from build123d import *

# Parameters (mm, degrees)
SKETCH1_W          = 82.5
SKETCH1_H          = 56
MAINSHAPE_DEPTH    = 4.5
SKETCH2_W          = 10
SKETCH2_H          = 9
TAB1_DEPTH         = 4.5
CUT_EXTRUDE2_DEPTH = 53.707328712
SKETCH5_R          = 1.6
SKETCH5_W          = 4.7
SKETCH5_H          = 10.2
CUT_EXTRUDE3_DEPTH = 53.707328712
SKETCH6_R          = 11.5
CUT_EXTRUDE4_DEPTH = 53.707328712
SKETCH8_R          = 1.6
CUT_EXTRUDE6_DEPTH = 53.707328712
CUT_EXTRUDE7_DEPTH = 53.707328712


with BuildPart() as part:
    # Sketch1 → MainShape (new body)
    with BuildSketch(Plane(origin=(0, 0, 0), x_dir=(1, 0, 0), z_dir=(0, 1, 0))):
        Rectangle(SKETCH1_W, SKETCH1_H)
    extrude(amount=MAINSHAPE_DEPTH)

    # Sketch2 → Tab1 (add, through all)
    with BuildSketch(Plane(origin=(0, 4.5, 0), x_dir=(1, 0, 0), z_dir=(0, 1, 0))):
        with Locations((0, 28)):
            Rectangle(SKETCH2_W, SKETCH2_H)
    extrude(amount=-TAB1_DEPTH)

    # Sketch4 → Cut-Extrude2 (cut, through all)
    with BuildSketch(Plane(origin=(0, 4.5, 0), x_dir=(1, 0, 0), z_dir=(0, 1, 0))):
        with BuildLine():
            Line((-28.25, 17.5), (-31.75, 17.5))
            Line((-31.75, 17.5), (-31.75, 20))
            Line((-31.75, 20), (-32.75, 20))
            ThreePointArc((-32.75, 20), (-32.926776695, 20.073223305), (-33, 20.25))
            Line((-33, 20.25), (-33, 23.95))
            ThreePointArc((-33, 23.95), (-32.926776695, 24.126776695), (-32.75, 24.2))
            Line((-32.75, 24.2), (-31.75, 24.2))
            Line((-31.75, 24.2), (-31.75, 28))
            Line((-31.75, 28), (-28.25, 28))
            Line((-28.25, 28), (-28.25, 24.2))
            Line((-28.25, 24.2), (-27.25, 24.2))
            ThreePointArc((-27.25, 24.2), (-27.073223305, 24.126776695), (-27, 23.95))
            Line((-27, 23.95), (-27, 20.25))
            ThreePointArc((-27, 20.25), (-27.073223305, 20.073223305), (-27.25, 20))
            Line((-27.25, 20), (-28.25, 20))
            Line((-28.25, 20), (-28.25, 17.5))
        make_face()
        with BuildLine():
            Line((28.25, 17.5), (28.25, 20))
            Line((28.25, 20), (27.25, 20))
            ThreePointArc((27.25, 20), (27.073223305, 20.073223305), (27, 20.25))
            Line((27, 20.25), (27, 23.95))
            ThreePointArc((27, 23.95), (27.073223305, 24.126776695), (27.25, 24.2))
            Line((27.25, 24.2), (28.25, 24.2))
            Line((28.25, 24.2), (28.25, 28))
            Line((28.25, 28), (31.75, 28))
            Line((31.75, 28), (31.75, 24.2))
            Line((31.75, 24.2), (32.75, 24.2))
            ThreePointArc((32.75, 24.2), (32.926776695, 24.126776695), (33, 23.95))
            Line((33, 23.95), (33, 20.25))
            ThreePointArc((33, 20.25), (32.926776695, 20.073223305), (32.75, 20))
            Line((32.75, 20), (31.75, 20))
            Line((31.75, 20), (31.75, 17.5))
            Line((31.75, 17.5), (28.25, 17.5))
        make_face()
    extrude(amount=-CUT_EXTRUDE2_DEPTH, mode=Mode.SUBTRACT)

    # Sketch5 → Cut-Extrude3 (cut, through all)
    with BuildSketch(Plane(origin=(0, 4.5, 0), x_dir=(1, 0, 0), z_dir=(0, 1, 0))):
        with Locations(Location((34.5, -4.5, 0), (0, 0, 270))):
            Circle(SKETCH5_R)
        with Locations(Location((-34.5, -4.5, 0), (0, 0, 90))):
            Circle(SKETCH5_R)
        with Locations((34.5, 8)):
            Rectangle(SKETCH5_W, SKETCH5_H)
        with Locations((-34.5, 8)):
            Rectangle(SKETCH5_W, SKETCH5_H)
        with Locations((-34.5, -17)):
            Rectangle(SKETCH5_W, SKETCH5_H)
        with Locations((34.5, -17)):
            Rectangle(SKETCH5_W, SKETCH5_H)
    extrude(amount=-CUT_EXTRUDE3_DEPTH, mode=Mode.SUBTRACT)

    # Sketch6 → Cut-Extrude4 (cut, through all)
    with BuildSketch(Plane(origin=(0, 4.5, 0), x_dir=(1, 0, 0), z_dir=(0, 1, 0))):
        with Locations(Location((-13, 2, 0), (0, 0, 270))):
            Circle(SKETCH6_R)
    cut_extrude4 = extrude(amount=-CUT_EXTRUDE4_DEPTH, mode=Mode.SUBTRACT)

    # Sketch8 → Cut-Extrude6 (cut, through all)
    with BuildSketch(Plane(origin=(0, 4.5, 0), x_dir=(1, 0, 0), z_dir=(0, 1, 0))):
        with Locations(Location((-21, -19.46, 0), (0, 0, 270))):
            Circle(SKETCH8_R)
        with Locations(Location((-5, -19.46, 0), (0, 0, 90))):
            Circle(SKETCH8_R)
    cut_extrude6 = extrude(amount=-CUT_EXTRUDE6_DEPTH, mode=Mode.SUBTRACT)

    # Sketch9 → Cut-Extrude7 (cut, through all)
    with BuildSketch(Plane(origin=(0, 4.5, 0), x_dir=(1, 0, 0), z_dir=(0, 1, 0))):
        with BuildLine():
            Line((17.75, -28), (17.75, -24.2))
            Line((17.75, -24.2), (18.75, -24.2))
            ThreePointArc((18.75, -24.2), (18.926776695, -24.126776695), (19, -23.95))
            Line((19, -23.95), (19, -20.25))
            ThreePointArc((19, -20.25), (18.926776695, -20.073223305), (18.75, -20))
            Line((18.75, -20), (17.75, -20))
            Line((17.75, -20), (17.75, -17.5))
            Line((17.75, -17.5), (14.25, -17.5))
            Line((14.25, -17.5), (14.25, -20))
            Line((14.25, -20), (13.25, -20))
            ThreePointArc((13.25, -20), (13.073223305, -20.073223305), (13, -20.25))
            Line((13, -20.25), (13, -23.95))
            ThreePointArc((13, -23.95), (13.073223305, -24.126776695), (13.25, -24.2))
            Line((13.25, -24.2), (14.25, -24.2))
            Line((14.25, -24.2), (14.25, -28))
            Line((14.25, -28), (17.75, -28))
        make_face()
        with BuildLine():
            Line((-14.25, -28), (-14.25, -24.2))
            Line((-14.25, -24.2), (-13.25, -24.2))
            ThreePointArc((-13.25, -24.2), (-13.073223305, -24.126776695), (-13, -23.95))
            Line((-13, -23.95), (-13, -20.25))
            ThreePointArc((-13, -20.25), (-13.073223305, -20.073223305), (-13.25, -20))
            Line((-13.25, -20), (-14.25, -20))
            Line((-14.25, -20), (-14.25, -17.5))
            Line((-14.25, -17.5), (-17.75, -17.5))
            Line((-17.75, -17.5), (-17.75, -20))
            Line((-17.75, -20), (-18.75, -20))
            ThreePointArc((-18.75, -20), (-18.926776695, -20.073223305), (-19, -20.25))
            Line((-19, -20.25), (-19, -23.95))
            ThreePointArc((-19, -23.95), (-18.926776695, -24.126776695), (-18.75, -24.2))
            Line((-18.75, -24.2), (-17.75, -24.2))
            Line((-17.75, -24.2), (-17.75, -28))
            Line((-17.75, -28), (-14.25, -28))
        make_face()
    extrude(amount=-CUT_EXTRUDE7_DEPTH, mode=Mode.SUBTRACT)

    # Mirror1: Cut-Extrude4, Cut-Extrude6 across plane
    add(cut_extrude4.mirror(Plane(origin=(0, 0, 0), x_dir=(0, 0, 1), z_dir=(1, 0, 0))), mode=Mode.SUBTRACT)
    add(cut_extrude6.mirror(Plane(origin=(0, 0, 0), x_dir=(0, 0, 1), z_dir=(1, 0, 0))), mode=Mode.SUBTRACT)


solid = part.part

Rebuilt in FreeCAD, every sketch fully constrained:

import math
import FreeCAD as App
import Part
import Sketcher
from FreeCAD import Vector
Q = App.Units.Quantity

doc = App.newDocument("Part")
body = doc.addObject("PartDesign::Body", "Body")

# Sketch on XZ plane
sketch1 = doc.addObject("Sketcher::SketchObject", "Sketch")
body.addObject(sketch1)
sketch1.AttachmentSupport = (doc.XZ_Plane, [""])
sketch1.MapMode = "FlatFace"
sketch1.addGeometry([
    Part.LineSegment(Vector(-41.25, -28, 0), Vector(-41.25, 28, 0)),
    Part.LineSegment(Vector(-41.25, 28, 0), Vector(41.25, 28, 0)),
    Part.LineSegment(Vector(41.25, 28, 0), Vector(41.25, -28, 0)),
    Part.LineSegment(Vector(41.25, -28, 0), Vector(-41.25, -28, 0)),
], False)
sketch1.addConstraint([
    Sketcher.Constraint("Coincident", 0, 2, 1, 1),
    Sketcher.Constraint("Coincident", 1, 2, 2, 1),
    Sketcher.Constraint("Coincident", 2, 2, 3, 1),
    Sketcher.Constraint("Coincident", 3, 2, 0, 1),
    Sketcher.Constraint("Vertical", 0),
    Sketcher.Constraint("Horizontal", 1),
    Sketcher.Constraint("Vertical", 2),
    Sketcher.Constraint("Horizontal", 3),
    Sketcher.Constraint("Symmetric", 0, 2, 2, 2, -1, 1),
    Sketcher.Constraint("DistanceY", 0, 1, 0, 2, Q("56 mm")),
    Sketcher.Constraint("DistanceX", 1, 1, 1, 2, Q("82.5 mm")),
])
pad1 = doc.addObject("PartDesign::Pad", "Pad")
body.addObject(pad1)
pad1.Profile = sketch1
pad1.Length = 4.5
pad1.Reversed = True

# Sketch on XZ plane
sketch2 = doc.addObject("Sketcher::SketchObject", "Sketch001")
body.addObject(sketch2)
sketch2.AttachmentSupport = (doc.XZ_Plane, [""])
sketch2.MapMode = "FlatFace"
sketch2.AttachmentOffset = App.Placement(Vector(0, 0, -4.5), App.Rotation())
sketch2.addGeometry([
    Part.LineSegment(Vector(-5, -32.5, 0), Vector(-5, -23.5, 0)),
    Part.LineSegment(Vector(-5, -23.5, 0), Vector(5, -23.5, 0)),
    Part.LineSegment(Vector(5, -23.5, 0), Vector(5, -32.5, 0)),
    Part.LineSegment(Vector(5, -32.5, 0), Vector(-5, -32.5, 0)),
], False)
sketch2.addConstraint([
    Sketcher.Constraint("Coincident", 0, 2, 1, 1),
    Sketcher.Constraint("Coincident", 1, 2, 2, 1),
    Sketcher.Constraint("Coincident", 2, 2, 3, 1),
    Sketcher.Constraint("Coincident", 3, 2, 0, 1),
    Sketcher.Constraint("Vertical", 0),
    Sketcher.Constraint("Horizontal", 1),
    Sketcher.Constraint("Vertical", 2),
    Sketcher.Constraint("Horizontal", 3),
    Sketcher.Constraint("DistanceX", 1, 1, 1, 2, Q("10 mm")),
    Sketcher.Constraint("DistanceY", 0, 1, 0, 2, Q("9 mm")),
    Sketcher.Constraint("DistanceX", 0, 2, -1, 1, Q("5 mm")),
    Sketcher.Constraint("DistanceY", 0, 2, -1, 1, Q("23.5 mm")),
])
pad2 = doc.addObject("PartDesign::Pad", "Pad001")
body.addObject(pad2)
pad2.Profile = sketch2
pad2.Type = "UpToLast"

# Sketch on XZ plane
sketch3 = doc.addObject("Sketcher::SketchObject", "Sketch002")
body.addObject(sketch3)
sketch3.AttachmentSupport = (doc.XZ_Plane, [""])
sketch3.MapMode = "FlatFace"
sketch3.AttachmentOffset = App.Placement(Vector(0, 0, -4.5), App.Rotation())
sketch3.addGeometry([
    Part.LineSegment(Vector(-31.75, -17.5, 0), Vector(-28.25, -17.5, 0)),  # 0
    Part.LineSegment(Vector(-28.25, -17.5, 0), Vector(-28.25, -20, 0)),  # 1
    Part.LineSegment(Vector(-28.25, -20, 0), Vector(-27.25, -20, 0)),  # 2
    Part.ArcOfCircle(Part.Circle(Vector(-27.25, -20.25, 0), Vector(0, 0, 1), 0.25), math.radians(0), math.radians(90)),  # 3
    Part.LineSegment(Vector(-27, -20.25, 0), Vector(-27, -23.95, 0)),  # 4
    Part.ArcOfCircle(Part.Circle(Vector(-27.25, -23.95, 0), Vector(0, 0, 1), 0.25), math.radians(-90), math.radians(0)),  # 5
    Part.LineSegment(Vector(-27.25, -24.2, 0), Vector(-28.25, -24.2, 0)),  # 6
    Part.LineSegment(Vector(-28.25, -24.2, 0), Vector(-28.25, -28, 0)),  # 7
    Part.LineSegment(Vector(-28.25, -28, 0), Vector(-31.75, -28, 0)),  # 8
    Part.LineSegment(Vector(-31.75, -28, 0), Vector(-31.75, -24.2, 0)),  # 9
    Part.LineSegment(Vector(-31.75, -24.2, 0), Vector(-32.75, -24.2, 0)),  # 10
    Part.ArcOfCircle(Part.Circle(Vector(-32.75, -23.95, 0), Vector(0, 0, 1), 0.25), math.radians(-180), math.radians(-90)),  # 11
    Part.LineSegment(Vector(-33, -23.95, 0), Vector(-33, -20.25, 0)),  # 12
    Part.ArcOfCircle(Part.Circle(Vector(-32.75, -20.25, 0), Vector(0, 0, 1), 0.25), math.radians(90), math.radians(180)),  # 13
    Part.LineSegment(Vector(-32.75, -20, 0), Vector(-31.75, -20, 0)),  # 14
    Part.LineSegment(Vector(-31.75, -20, 0), Vector(-31.75, -17.5, 0)),  # 15
    Part.LineSegment(Vector(28.25, -20, 0), Vector(28.25, -17.5, 0)),  # 16
    Part.LineSegment(Vector(28.25, -17.5, 0), Vector(31.75, -17.5, 0)),  # 17
    Part.LineSegment(Vector(31.75, -17.5, 0), Vector(31.75, -20, 0)),  # 18
    Part.LineSegment(Vector(31.75, -20, 0), Vector(32.75, -20, 0)),  # 19
    Part.ArcOfCircle(Part.Circle(Vector(32.75, -20.25, 0), Vector(0, 0, 1), 0.25), math.radians(0), math.radians(90)),  # 20
    Part.LineSegment(Vector(33, -20.25, 0), Vector(33, -23.95, 0)),  # 21
    Part.ArcOfCircle(Part.Circle(Vector(32.75, -23.95, 0), Vector(0, 0, 1), 0.25), math.radians(-90), math.radians(0)),  # 22
    Part.LineSegment(Vector(32.75, -24.2, 0), Vector(31.75, -24.2, 0)),  # 23
    Part.LineSegment(Vector(31.75, -24.2, 0), Vector(31.75, -28, 0)),  # 24
    Part.LineSegment(Vector(31.75, -28, 0), Vector(28.25, -28, 0)),  # 25
    Part.LineSegment(Vector(28.25, -28, 0), Vector(28.25, -24.2, 0)),  # 26
    Part.LineSegment(Vector(28.25, -24.2, 0), Vector(27.25, -24.2, 0)),  # 27
    Part.ArcOfCircle(Part.Circle(Vector(27.25, -23.95, 0), Vector(0, 0, 1), 0.25), math.radians(-180), math.radians(-90)),  # 28
    Part.LineSegment(Vector(27, -23.95, 0), Vector(27, -20.25, 0)),  # 29
    Part.ArcOfCircle(Part.Circle(Vector(27.25, -20.25, 0), Vector(0, 0, 1), 0.25), math.radians(90), math.radians(180)),  # 30
    Part.LineSegment(Vector(27.25, -20, 0), Vector(28.25, -20, 0)),  # 31
], False)
sketch3.addConstraint([
    Sketcher.Constraint("Coincident", 0, 2, 1, 1),
    Sketcher.Constraint("Coincident", 1, 2, 2, 1),
    Sketcher.Constraint("Tangent", 2, 2, 3, 2),
    Sketcher.Constraint("Tangent", 3, 1, 4, 1),
    Sketcher.Constraint("Tangent", 4, 2, 5, 2),
    Sketcher.Constraint("Tangent", 5, 1, 6, 1),
    Sketcher.Constraint("Coincident", 6, 2, 7, 1),
    Sketcher.Constraint("Coincident", 7, 2, 8, 1),
    Sketcher.Constraint("Coincident", 8, 2, 9, 1),
    Sketcher.Constraint("Coincident", 9, 2, 10, 1),
    Sketcher.Constraint("Tangent", 10, 2, 11, 2),
    Sketcher.Constraint("Tangent", 11, 1, 12, 1),
    Sketcher.Constraint("Tangent", 12, 2, 13, 2),
    Sketcher.Constraint("Tangent", 13, 1, 14, 1),
    Sketcher.Constraint("Coincident", 14, 2, 15, 1),
    Sketcher.Constraint("Coincident", 15, 2, 0, 1),
    Sketcher.Constraint("Coincident", 16, 2, 17, 1),
    Sketcher.Constraint("Coincident", 17, 2, 18, 1),
    Sketcher.Constraint("Coincident", 18, 2, 19, 1),
    Sketcher.Constraint("Tangent", 19, 2, 20, 2),
    Sketcher.Constraint("Tangent", 20, 1, 21, 1),
    Sketcher.Constraint("Tangent", 21, 2, 22, 2),
    Sketcher.Constraint("Tangent", 22, 1, 23, 1),
    Sketcher.Constraint("Coincident", 23, 2, 24, 1),
    Sketcher.Constraint("Coincident", 24, 2, 25, 1),
    Sketcher.Constraint("Coincident", 25, 2, 26, 1),
    Sketcher.Constraint("Coincident", 26, 2, 27, 1),
    Sketcher.Constraint("Tangent", 27, 2, 28, 2),
    Sketcher.Constraint("Tangent", 28, 1, 29, 1),
    Sketcher.Constraint("Tangent", 29, 2, 30, 2),
    Sketcher.Constraint("Tangent", 30, 1, 31, 1),
    Sketcher.Constraint("Coincident", 31, 2, 16, 1),
    Sketcher.Constraint("Horizontal", 0),
    Sketcher.Constraint("Vertical", 1),
    Sketcher.Constraint("Horizontal", 2),
    Sketcher.Constraint("Vertical", 4),
    Sketcher.Constraint("Horizontal", 6),
    Sketcher.Constraint("Vertical", 7),
    Sketcher.Constraint("Horizontal", 8),
    Sketcher.Constraint("Vertical", 9),
    Sketcher.Constraint("Horizontal", 10),
    Sketcher.Constraint("Vertical", 12),
    Sketcher.Constraint("Horizontal", 14),
    Sketcher.Constraint("Vertical", 15),
    Sketcher.Constraint("Vertical", 16),
    Sketcher.Constraint("Horizontal", 17),
    Sketcher.Constraint("Vertical", 18),
    Sketcher.Constraint("Horizontal", 19),
    Sketcher.Constraint("Vertical", 21),
    Sketcher.Constraint("Horizontal", 23),
    Sketcher.Constraint("Vertical", 24),
    Sketcher.Constraint("Horizontal", 25),
    Sketcher.Constraint("Vertical", 26),
    Sketcher.Constraint("Horizontal", 27),
    Sketcher.Constraint("Vertical", 29),
    Sketcher.Constraint("Horizontal", 31),
    Sketcher.Constraint("Equal", 3, 5),
    Sketcher.Constraint("Equal", 5, 11),
    Sketcher.Constraint("Equal", 11, 13),
    Sketcher.Constraint("Equal", 13, 20),
    Sketcher.Constraint("Equal", 20, 22),
    Sketcher.Constraint("Equal", 22, 28),
    Sketcher.Constraint("Equal", 28, 30),
    Sketcher.Constraint("Symmetric", 13, 3, 20, 3, -2),
    Sketcher.Constraint("Symmetric", 5, 3, 28, 3, -2),
    Sketcher.Constraint("Symmetric", 0, 2, 16, 2, -2),
    Sketcher.Constraint("Symmetric", 9, 2, 23, 2, -2),
    Sketcher.Constraint("Symmetric", 7, 2, 25, 2, -2),
    Sketcher.Constraint("Horizontal", 5, 3, 11, 3),
    Sketcher.Constraint("Horizontal", 3, 3, 13, 3),
    Sketcher.Constraint("Horizontal", 20, 3, 30, 3),
    Sketcher.Constraint("Vertical", 1, 2, 6, 2),
    Sketcher.Constraint("Vertical", 9, 2, 14, 2),
    Sketcher.Constraint("Vertical", 18, 2, 23, 2),
    Sketcher.Constraint("Equal", 6, 10),
    Sketcher.Constraint("DistanceX", 2, 1, 2, 2, Q("1 mm")),
    Sketcher.Constraint("Radius", 3, Q("0.25 mm")),
    Sketcher.Constraint("DistanceX", 0, 1, 0, 2, Q("3.5 mm")),
    Sketcher.Constraint("DistanceY", 1, 2, 1, 1, Q("2.5 mm")),
    Sketcher.Constraint("DistanceY", 4, 2, 4, 1, Q("3.7 mm")),
    Sketcher.Constraint("DistanceY", 7, 2, 7, 1, Q("3.8 mm")),
    Sketcher.Constraint("DistanceY", 1, 2, -1, 1, Q("20 mm")),
    Sketcher.Constraint("DistanceX", 3, 1, -1, 1, Q("27 mm")),
])
pocket1 = doc.addObject("PartDesign::Pocket", "Pocket")
body.addObject(pocket1)
pocket1.Profile = sketch3
pocket1.Type = "ThroughAll"
pocket1.Reversed = True

# Sketch on XZ plane
sketch4 = doc.addObject("Sketcher::SketchObject", "Sketch003")
body.addObject(sketch4)
sketch4.AttachmentSupport = (doc.XZ_Plane, [""])
sketch4.MapMode = "FlatFace"
sketch4.AttachmentOffset = App.Placement(Vector(0, 0, -4.5), App.Rotation())
sketch4.addGeometry([
    Part.Circle(Vector(34.5, 4.5, 0), Vector(0, 0, 1), 1.6),  # 0
    Part.Circle(Vector(-34.5, 4.5, 0), Vector(0, 0, 1), 1.6),  # 1
    Part.LineSegment(Vector(32.15, -13.1, 0), Vector(32.15, -2.9, 0)),  # 2
    Part.LineSegment(Vector(32.15, -2.9, 0), Vector(36.85, -2.9, 0)),  # 3
    Part.LineSegment(Vector(36.85, -2.9, 0), Vector(36.85, -13.1, 0)),  # 4
    Part.LineSegment(Vector(36.85, -13.1, 0), Vector(32.15, -13.1, 0)),  # 5
    Part.LineSegment(Vector(-36.85, -13.1, 0), Vector(-36.85, -2.9, 0)),  # 6
    Part.LineSegment(Vector(-36.85, -2.9, 0), Vector(-32.15, -2.9, 0)),  # 7
    Part.LineSegment(Vector(-32.15, -2.9, 0), Vector(-32.15, -13.1, 0)),  # 8
    Part.LineSegment(Vector(-32.15, -13.1, 0), Vector(-36.85, -13.1, 0)),  # 9
    Part.LineSegment(Vector(-36.85, 11.9, 0), Vector(-36.85, 22.1, 0)),  # 10
    Part.LineSegment(Vector(-36.85, 22.1, 0), Vector(-32.15, 22.1, 0)),  # 11
    Part.LineSegment(Vector(-32.15, 22.1, 0), Vector(-32.15, 11.9, 0)),  # 12
    Part.LineSegment(Vector(-32.15, 11.9, 0), Vector(-36.85, 11.9, 0)),  # 13
    Part.LineSegment(Vector(32.15, 11.9, 0), Vector(32.15, 22.1, 0)),  # 14
    Part.LineSegment(Vector(32.15, 22.1, 0), Vector(36.85, 22.1, 0)),  # 15
    Part.LineSegment(Vector(36.85, 22.1, 0), Vector(36.85, 11.9, 0)),  # 16
    Part.LineSegment(Vector(36.85, 11.9, 0), Vector(32.15, 11.9, 0)),  # 17
], False)
sketch4.addConstraint([
    Sketcher.Constraint("Coincident", 2, 2, 3, 1),
    Sketcher.Constraint("Coincident", 3, 2, 4, 1),
    Sketcher.Constraint("Coincident", 4, 2, 5, 1),
    Sketcher.Constraint("Coincident", 5, 2, 2, 1),
    Sketcher.Constraint("Coincident", 6, 2, 7, 1),
    Sketcher.Constraint("Coincident", 7, 2, 8, 1),
    Sketcher.Constraint("Coincident", 8, 2, 9, 1),
    Sketcher.Constraint("Coincident", 9, 2, 6, 1),
    Sketcher.Constraint("Coincident", 10, 2, 11, 1),
    Sketcher.Constraint("Coincident", 11, 2, 12, 1),
    Sketcher.Constraint("Coincident", 12, 2, 13, 1),
    Sketcher.Constraint("Coincident", 13, 2, 10, 1),
    Sketcher.Constraint("Coincident", 14, 2, 15, 1),
    Sketcher.Constraint("Coincident", 15, 2, 16, 1),
    Sketcher.Constraint("Coincident", 16, 2, 17, 1),
    Sketcher.Constraint("Coincident", 17, 2, 14, 1),
    Sketcher.Constraint("Vertical", 2),
    Sketcher.Constraint("Horizontal", 3),
    Sketcher.Constraint("Vertical", 4),
    Sketcher.Constraint("Horizontal", 5),
    Sketcher.Constraint("Vertical", 6),
    Sketcher.Constraint("Horizontal", 7),
    Sketcher.Constraint("Vertical", 8),
    Sketcher.Constraint("Horizontal", 9),
    Sketcher.Constraint("Vertical", 10),
    Sketcher.Constraint("Horizontal", 11),
    Sketcher.Constraint("Vertical", 12),
    Sketcher.Constraint("Horizontal", 13),
    Sketcher.Constraint("Vertical", 14),
    Sketcher.Constraint("Horizontal", 15),
    Sketcher.Constraint("Vertical", 16),
    Sketcher.Constraint("Horizontal", 17),
    Sketcher.Constraint("Equal", 0, 1),
    Sketcher.Constraint("Symmetric", 0, 3, 1, 3, -2),
    Sketcher.Constraint("Symmetric", 3, 2, 6, 2, -2),
    Sketcher.Constraint("Symmetric", 5, 2, 8, 2, -2),
    Sketcher.Constraint("Symmetric", 11, 2, 14, 2, -2),
    Sketcher.Constraint("Symmetric", 13, 2, 16, 2, -2),
    Sketcher.Constraint("Vertical", 9, 2, 10, 2),
    Sketcher.Constraint("Vertical", 8, 2, 11, 2),
    Sketcher.Constraint("Equal", 8, 10),
    Sketcher.Constraint("Diameter", 0, Q("3.2 mm")),
    Sketcher.Constraint("DistanceX", 3, 1, 3, 2, Q("4.7 mm")),
    Sketcher.Constraint("DistanceY", 2, 1, 2, 2, Q("10.2 mm")),
    Sketcher.Constraint("DistanceX", 1, 3, 0, 3, Q("69 mm")),
    Sketcher.Constraint("DistanceX", 6, 2, 2, 2, Q("69 mm")),
    Sketcher.Constraint("DistanceY", 6, 2, 10, 2, Q("25 mm")),
    Sketcher.Constraint("DistanceY", -1, 1, 0, 3, Q("4.5 mm")),
    Sketcher.Constraint("DistanceY", 2, 2, -1, 1, Q("2.9 mm")),
])
pocket2 = doc.addObject("PartDesign::Pocket", "Pocket001")
body.addObject(pocket2)
pocket2.Profile = sketch4
pocket2.Type = "ThroughAll"
pocket2.Reversed = True

# Sketch on XZ plane
sketch5 = doc.addObject("Sketcher::SketchObject", "Sketch004")
body.addObject(sketch5)
sketch5.AttachmentSupport = (doc.XZ_Plane, [""])
sketch5.MapMode = "FlatFace"
sketch5.AttachmentOffset = App.Placement(Vector(0, 0, -4.5), App.Rotation())
sketch5.addGeometry(Part.Circle(Vector(-13, -2, 0), Vector(0, 0, 1), 11.5), False)
sketch5.addConstraint([
    Sketcher.Constraint("Diameter", 0, Q("23 mm")),
    Sketcher.Constraint("DistanceX", 0, 3, -1, 1, Q("13 mm")),
    Sketcher.Constraint("DistanceY", 0, 3, -1, 1, Q("2 mm")),
])
pocket3 = doc.addObject("PartDesign::Pocket", "Pocket002")
body.addObject(pocket3)
pocket3.Profile = sketch5
pocket3.Type = "ThroughAll"
pocket3.Reversed = True

# Sketch on XZ plane
sketch6 = doc.addObject("Sketcher::SketchObject", "Sketch005")
body.addObject(sketch6)
sketch6.AttachmentSupport = (doc.XZ_Plane, [""])
sketch6.MapMode = "FlatFace"
sketch6.AttachmentOffset = App.Placement(Vector(0, 0, -4.5), App.Rotation())
sketch6.addGeometry([
    Part.Circle(Vector(-21, 19.46, 0), Vector(0, 0, 1), 1.6),
    Part.Circle(Vector(-5, 19.46, 0), Vector(0, 0, 1), 1.6),
], False)
sketch6.addConstraint([
    Sketcher.Constraint("Equal", 0, 1),
    Sketcher.Constraint("Horizontal", 0, 3, 1, 3),
    Sketcher.Constraint("Diameter", 0, Q("3.2 mm")),
    Sketcher.Constraint("DistanceX", 0, 3, -1, 1, Q("21 mm")),
    Sketcher.Constraint("DistanceX", 1, 3, -1, 1, Q("5 mm")),
    Sketcher.Constraint("DistanceY", -1, 1, 0, 3, Q("19.46 mm")),
])
pocket4 = doc.addObject("PartDesign::Pocket", "Pocket003")
body.addObject(pocket4)
pocket4.Profile = sketch6
pocket4.Type = "ThroughAll"
pocket4.Reversed = True

# Sketch on XZ plane
sketch7 = doc.addObject("Sketcher::SketchObject", "Sketch006")
body.addObject(sketch7)
sketch7.AttachmentSupport = (doc.XZ_Plane, [""])
sketch7.MapMode = "FlatFace"
sketch7.AttachmentOffset = App.Placement(Vector(0, 0, -4.5), App.Rotation())
sketch7.addGeometry([
    Part.LineSegment(Vector(17.75, 28, 0), Vector(17.75, 24.2, 0)),  # 0
    Part.LineSegment(Vector(17.75, 24.2, 0), Vector(18.75, 24.2, 0)),  # 1
    Part.ArcOfCircle(Part.Circle(Vector(18.75, 23.95, 0), Vector(0, 0, 1), 0.25), math.radians(0), math.radians(90)),  # 2
    Part.LineSegment(Vector(19, 23.95, 0), Vector(19, 20.25, 0)),  # 3
    Part.ArcOfCircle(Part.Circle(Vector(18.75, 20.25, 0), Vector(0, 0, 1), 0.25), math.radians(-90), math.radians(0)),  # 4
    Part.LineSegment(Vector(18.75, 20, 0), Vector(17.75, 20, 0)),  # 5
    Part.LineSegment(Vector(17.75, 20, 0), Vector(17.75, 17.5, 0)),  # 6
    Part.LineSegment(Vector(17.75, 17.5, 0), Vector(14.25, 17.5, 0)),  # 7
    Part.LineSegment(Vector(14.25, 17.5, 0), Vector(14.25, 20, 0)),  # 8
    Part.LineSegment(Vector(14.25, 20, 0), Vector(13.25, 20, 0)),  # 9
    Part.ArcOfCircle(Part.Circle(Vector(13.25, 20.25, 0), Vector(0, 0, 1), 0.25), math.radians(-180), math.radians(-90)),  # 10
    Part.LineSegment(Vector(13, 20.25, 0), Vector(13, 23.95, 0)),  # 11
    Part.ArcOfCircle(Part.Circle(Vector(13.25, 23.95, 0), Vector(0, 0, 1), 0.25), math.radians(90), math.radians(180)),  # 12
    Part.LineSegment(Vector(13.25, 24.2, 0), Vector(14.25, 24.2, 0)),  # 13
    Part.LineSegment(Vector(14.25, 24.2, 0), Vector(14.25, 28, 0)),  # 14
    Part.LineSegment(Vector(14.25, 28, 0), Vector(17.75, 28, 0)),  # 15
    Part.LineSegment(Vector(-14.25, 28, 0), Vector(-14.25, 24.2, 0)),  # 16
    Part.LineSegment(Vector(-14.25, 24.2, 0), Vector(-13.25, 24.2, 0)),  # 17
    Part.ArcOfCircle(Part.Circle(Vector(-13.25, 23.95, 0), Vector(0, 0, 1), 0.25), math.radians(0), math.radians(90)),  # 18
    Part.LineSegment(Vector(-13, 23.95, 0), Vector(-13, 20.25, 0)),  # 19
    Part.ArcOfCircle(Part.Circle(Vector(-13.25, 20.25, 0), Vector(0, 0, 1), 0.25), math.radians(-90), math.radians(0)),  # 20
    Part.LineSegment(Vector(-13.25, 20, 0), Vector(-14.25, 20, 0)),  # 21
    Part.LineSegment(Vector(-14.25, 20, 0), Vector(-14.25, 17.5, 0)),  # 22
    Part.LineSegment(Vector(-14.25, 17.5, 0), Vector(-17.75, 17.5, 0)),  # 23
    Part.LineSegment(Vector(-17.75, 17.5, 0), Vector(-17.75, 20, 0)),  # 24
    Part.LineSegment(Vector(-17.75, 20, 0), Vector(-18.75, 20, 0)),  # 25
    Part.ArcOfCircle(Part.Circle(Vector(-18.75, 20.25, 0), Vector(0, 0, 1), 0.25), math.radians(-180), math.radians(-90)),  # 26
    Part.LineSegment(Vector(-19, 20.25, 0), Vector(-19, 23.95, 0)),  # 27
    Part.ArcOfCircle(Part.Circle(Vector(-18.75, 23.95, 0), Vector(0, 0, 1), 0.25), math.radians(90), math.radians(180)),  # 28
    Part.LineSegment(Vector(-18.75, 24.2, 0), Vector(-17.75, 24.2, 0)),  # 29
    Part.LineSegment(Vector(-17.75, 24.2, 0), Vector(-17.75, 28, 0)),  # 30
    Part.LineSegment(Vector(-17.75, 28, 0), Vector(-14.25, 28, 0)),  # 31
], False)
sketch7.addConstraint([
    Sketcher.Constraint("Coincident", 0, 2, 1, 1),
    Sketcher.Constraint("Tangent", 1, 2, 2, 2),
    Sketcher.Constraint("Tangent", 2, 1, 3, 1),
    Sketcher.Constraint("Tangent", 3, 2, 4, 2),
    Sketcher.Constraint("Tangent", 4, 1, 5, 1),
    Sketcher.Constraint("Coincident", 5, 2, 6, 1),
    Sketcher.Constraint("Coincident", 6, 2, 7, 1),
    Sketcher.Constraint("Coincident", 7, 2, 8, 1),
    Sketcher.Constraint("Coincident", 8, 2, 9, 1),
    Sketcher.Constraint("Tangent", 9, 2, 10, 2),
    Sketcher.Constraint("Tangent", 10, 1, 11, 1),
    Sketcher.Constraint("Tangent", 11, 2, 12, 2),
    Sketcher.Constraint("Tangent", 12, 1, 13, 1),
    Sketcher.Constraint("Coincident", 13, 2, 14, 1),
    Sketcher.Constraint("Coincident", 14, 2, 15, 1),
    Sketcher.Constraint("Coincident", 15, 2, 0, 1),
    Sketcher.Constraint("Coincident", 16, 2, 17, 1),
    Sketcher.Constraint("Tangent", 17, 2, 18, 2),
    Sketcher.Constraint("Tangent", 18, 1, 19, 1),
    Sketcher.Constraint("Tangent", 19, 2, 20, 2),
    Sketcher.Constraint("Tangent", 20, 1, 21, 1),
    Sketcher.Constraint("Coincident", 21, 2, 22, 1),
    Sketcher.Constraint("Coincident", 22, 2, 23, 1),
    Sketcher.Constraint("Coincident", 23, 2, 24, 1),
    Sketcher.Constraint("Coincident", 24, 2, 25, 1),
    Sketcher.Constraint("Tangent", 25, 2, 26, 2),
    Sketcher.Constraint("Tangent", 26, 1, 27, 1),
    Sketcher.Constraint("Tangent", 27, 2, 28, 2),
    Sketcher.Constraint("Tangent", 28, 1, 29, 1),
    Sketcher.Constraint("Coincident", 29, 2, 30, 1),
    Sketcher.Constraint("Coincident", 30, 2, 31, 1),
    Sketcher.Constraint("Coincident", 31, 2, 16, 1),
    Sketcher.Constraint("Vertical", 0),
    Sketcher.Constraint("Horizontal", 1),
    Sketcher.Constraint("Vertical", 3),
    Sketcher.Constraint("Horizontal", 5),
    Sketcher.Constraint("Vertical", 6),
    Sketcher.Constraint("Horizontal", 7),
    Sketcher.Constraint("Vertical", 8),
    Sketcher.Constraint("Horizontal", 9),
    Sketcher.Constraint("Vertical", 11),
    Sketcher.Constraint("Horizontal", 13),
    Sketcher.Constraint("Vertical", 14),
    Sketcher.Constraint("Horizontal", 15),
    Sketcher.Constraint("Vertical", 16),
    Sketcher.Constraint("Horizontal", 17),
    Sketcher.Constraint("Vertical", 19),
    Sketcher.Constraint("Horizontal", 21),
    Sketcher.Constraint("Vertical", 22),
    Sketcher.Constraint("Horizontal", 23),
    Sketcher.Constraint("Vertical", 24),
    Sketcher.Constraint("Horizontal", 25),
    Sketcher.Constraint("Vertical", 27),
    Sketcher.Constraint("Horizontal", 29),
    Sketcher.Constraint("Vertical", 30),
    Sketcher.Constraint("Horizontal", 31),
    Sketcher.Constraint("Equal", 2, 4),
    Sketcher.Constraint("Equal", 4, 10),
    Sketcher.Constraint("Equal", 10, 12),
    Sketcher.Constraint("Equal", 12, 18),
    Sketcher.Constraint("Equal", 18, 20),
    Sketcher.Constraint("Equal", 20, 26),
    Sketcher.Constraint("Equal", 26, 28),
    Sketcher.Constraint("Symmetric", 12, 3, 18, 3, -2),
    Sketcher.Constraint("Symmetric", 4, 3, 26, 3, -2),
    Sketcher.Constraint("Symmetric", 8, 2, 21, 2, -2),
    Sketcher.Constraint("Symmetric", 6, 2, 23, 2, -2),
    Sketcher.Constraint("Symmetric", 0, 2, 29, 2, -2),
    Sketcher.Constraint("Symmetric", 14, 2, 31, 2, -2),
    Sketcher.Constraint("Horizontal", 4, 3, 10, 3),
    Sketcher.Constraint("Horizontal", 2, 3, 12, 3),
    Sketcher.Constraint("Vertical", 0, 2, 5, 2),
    Sketcher.Constraint("Vertical", 8, 2, 13, 2),
    Sketcher.Constraint("Equal", 5, 9),
    Sketcher.Constraint("DistanceX", 1, 1, 1, 2, Q("1 mm")),
    Sketcher.Constraint("Radius", 2, Q("0.25 mm")),
    Sketcher.Constraint("DistanceX", 7, 2, 7, 1, Q("3.5 mm")),
    Sketcher.Constraint("DistanceY", 0, 2, 0, 1, Q("3.8 mm")),
    Sketcher.Constraint("DistanceY", 3, 2, 3, 1, Q("3.7 mm")),
    Sketcher.Constraint("DistanceY", 6, 2, 6, 1, Q("2.5 mm")),
    Sketcher.Constraint("DistanceX", -1, 1, 2, 1, Q("19 mm")),
    Sketcher.Constraint("DistanceY", -1, 1, 4, 1, Q("20 mm")),
])
pocket5 = doc.addObject("PartDesign::Pocket", "Pocket004")
body.addObject(pocket5)
pocket5.Profile = sketch7
pocket5.Type = "ThroughAll"
pocket5.Reversed = True
doc.recompute()

mirrored = doc.addObject("PartDesign::Mirrored", "Mirrored")
body.addObject(mirrored)
mirrored.Originals = [pocket3, pocket4]
mirrored.MirrorPlane = (doc.YZ_Plane, [""])
body.Tip = mirrored

doc.recompute()
